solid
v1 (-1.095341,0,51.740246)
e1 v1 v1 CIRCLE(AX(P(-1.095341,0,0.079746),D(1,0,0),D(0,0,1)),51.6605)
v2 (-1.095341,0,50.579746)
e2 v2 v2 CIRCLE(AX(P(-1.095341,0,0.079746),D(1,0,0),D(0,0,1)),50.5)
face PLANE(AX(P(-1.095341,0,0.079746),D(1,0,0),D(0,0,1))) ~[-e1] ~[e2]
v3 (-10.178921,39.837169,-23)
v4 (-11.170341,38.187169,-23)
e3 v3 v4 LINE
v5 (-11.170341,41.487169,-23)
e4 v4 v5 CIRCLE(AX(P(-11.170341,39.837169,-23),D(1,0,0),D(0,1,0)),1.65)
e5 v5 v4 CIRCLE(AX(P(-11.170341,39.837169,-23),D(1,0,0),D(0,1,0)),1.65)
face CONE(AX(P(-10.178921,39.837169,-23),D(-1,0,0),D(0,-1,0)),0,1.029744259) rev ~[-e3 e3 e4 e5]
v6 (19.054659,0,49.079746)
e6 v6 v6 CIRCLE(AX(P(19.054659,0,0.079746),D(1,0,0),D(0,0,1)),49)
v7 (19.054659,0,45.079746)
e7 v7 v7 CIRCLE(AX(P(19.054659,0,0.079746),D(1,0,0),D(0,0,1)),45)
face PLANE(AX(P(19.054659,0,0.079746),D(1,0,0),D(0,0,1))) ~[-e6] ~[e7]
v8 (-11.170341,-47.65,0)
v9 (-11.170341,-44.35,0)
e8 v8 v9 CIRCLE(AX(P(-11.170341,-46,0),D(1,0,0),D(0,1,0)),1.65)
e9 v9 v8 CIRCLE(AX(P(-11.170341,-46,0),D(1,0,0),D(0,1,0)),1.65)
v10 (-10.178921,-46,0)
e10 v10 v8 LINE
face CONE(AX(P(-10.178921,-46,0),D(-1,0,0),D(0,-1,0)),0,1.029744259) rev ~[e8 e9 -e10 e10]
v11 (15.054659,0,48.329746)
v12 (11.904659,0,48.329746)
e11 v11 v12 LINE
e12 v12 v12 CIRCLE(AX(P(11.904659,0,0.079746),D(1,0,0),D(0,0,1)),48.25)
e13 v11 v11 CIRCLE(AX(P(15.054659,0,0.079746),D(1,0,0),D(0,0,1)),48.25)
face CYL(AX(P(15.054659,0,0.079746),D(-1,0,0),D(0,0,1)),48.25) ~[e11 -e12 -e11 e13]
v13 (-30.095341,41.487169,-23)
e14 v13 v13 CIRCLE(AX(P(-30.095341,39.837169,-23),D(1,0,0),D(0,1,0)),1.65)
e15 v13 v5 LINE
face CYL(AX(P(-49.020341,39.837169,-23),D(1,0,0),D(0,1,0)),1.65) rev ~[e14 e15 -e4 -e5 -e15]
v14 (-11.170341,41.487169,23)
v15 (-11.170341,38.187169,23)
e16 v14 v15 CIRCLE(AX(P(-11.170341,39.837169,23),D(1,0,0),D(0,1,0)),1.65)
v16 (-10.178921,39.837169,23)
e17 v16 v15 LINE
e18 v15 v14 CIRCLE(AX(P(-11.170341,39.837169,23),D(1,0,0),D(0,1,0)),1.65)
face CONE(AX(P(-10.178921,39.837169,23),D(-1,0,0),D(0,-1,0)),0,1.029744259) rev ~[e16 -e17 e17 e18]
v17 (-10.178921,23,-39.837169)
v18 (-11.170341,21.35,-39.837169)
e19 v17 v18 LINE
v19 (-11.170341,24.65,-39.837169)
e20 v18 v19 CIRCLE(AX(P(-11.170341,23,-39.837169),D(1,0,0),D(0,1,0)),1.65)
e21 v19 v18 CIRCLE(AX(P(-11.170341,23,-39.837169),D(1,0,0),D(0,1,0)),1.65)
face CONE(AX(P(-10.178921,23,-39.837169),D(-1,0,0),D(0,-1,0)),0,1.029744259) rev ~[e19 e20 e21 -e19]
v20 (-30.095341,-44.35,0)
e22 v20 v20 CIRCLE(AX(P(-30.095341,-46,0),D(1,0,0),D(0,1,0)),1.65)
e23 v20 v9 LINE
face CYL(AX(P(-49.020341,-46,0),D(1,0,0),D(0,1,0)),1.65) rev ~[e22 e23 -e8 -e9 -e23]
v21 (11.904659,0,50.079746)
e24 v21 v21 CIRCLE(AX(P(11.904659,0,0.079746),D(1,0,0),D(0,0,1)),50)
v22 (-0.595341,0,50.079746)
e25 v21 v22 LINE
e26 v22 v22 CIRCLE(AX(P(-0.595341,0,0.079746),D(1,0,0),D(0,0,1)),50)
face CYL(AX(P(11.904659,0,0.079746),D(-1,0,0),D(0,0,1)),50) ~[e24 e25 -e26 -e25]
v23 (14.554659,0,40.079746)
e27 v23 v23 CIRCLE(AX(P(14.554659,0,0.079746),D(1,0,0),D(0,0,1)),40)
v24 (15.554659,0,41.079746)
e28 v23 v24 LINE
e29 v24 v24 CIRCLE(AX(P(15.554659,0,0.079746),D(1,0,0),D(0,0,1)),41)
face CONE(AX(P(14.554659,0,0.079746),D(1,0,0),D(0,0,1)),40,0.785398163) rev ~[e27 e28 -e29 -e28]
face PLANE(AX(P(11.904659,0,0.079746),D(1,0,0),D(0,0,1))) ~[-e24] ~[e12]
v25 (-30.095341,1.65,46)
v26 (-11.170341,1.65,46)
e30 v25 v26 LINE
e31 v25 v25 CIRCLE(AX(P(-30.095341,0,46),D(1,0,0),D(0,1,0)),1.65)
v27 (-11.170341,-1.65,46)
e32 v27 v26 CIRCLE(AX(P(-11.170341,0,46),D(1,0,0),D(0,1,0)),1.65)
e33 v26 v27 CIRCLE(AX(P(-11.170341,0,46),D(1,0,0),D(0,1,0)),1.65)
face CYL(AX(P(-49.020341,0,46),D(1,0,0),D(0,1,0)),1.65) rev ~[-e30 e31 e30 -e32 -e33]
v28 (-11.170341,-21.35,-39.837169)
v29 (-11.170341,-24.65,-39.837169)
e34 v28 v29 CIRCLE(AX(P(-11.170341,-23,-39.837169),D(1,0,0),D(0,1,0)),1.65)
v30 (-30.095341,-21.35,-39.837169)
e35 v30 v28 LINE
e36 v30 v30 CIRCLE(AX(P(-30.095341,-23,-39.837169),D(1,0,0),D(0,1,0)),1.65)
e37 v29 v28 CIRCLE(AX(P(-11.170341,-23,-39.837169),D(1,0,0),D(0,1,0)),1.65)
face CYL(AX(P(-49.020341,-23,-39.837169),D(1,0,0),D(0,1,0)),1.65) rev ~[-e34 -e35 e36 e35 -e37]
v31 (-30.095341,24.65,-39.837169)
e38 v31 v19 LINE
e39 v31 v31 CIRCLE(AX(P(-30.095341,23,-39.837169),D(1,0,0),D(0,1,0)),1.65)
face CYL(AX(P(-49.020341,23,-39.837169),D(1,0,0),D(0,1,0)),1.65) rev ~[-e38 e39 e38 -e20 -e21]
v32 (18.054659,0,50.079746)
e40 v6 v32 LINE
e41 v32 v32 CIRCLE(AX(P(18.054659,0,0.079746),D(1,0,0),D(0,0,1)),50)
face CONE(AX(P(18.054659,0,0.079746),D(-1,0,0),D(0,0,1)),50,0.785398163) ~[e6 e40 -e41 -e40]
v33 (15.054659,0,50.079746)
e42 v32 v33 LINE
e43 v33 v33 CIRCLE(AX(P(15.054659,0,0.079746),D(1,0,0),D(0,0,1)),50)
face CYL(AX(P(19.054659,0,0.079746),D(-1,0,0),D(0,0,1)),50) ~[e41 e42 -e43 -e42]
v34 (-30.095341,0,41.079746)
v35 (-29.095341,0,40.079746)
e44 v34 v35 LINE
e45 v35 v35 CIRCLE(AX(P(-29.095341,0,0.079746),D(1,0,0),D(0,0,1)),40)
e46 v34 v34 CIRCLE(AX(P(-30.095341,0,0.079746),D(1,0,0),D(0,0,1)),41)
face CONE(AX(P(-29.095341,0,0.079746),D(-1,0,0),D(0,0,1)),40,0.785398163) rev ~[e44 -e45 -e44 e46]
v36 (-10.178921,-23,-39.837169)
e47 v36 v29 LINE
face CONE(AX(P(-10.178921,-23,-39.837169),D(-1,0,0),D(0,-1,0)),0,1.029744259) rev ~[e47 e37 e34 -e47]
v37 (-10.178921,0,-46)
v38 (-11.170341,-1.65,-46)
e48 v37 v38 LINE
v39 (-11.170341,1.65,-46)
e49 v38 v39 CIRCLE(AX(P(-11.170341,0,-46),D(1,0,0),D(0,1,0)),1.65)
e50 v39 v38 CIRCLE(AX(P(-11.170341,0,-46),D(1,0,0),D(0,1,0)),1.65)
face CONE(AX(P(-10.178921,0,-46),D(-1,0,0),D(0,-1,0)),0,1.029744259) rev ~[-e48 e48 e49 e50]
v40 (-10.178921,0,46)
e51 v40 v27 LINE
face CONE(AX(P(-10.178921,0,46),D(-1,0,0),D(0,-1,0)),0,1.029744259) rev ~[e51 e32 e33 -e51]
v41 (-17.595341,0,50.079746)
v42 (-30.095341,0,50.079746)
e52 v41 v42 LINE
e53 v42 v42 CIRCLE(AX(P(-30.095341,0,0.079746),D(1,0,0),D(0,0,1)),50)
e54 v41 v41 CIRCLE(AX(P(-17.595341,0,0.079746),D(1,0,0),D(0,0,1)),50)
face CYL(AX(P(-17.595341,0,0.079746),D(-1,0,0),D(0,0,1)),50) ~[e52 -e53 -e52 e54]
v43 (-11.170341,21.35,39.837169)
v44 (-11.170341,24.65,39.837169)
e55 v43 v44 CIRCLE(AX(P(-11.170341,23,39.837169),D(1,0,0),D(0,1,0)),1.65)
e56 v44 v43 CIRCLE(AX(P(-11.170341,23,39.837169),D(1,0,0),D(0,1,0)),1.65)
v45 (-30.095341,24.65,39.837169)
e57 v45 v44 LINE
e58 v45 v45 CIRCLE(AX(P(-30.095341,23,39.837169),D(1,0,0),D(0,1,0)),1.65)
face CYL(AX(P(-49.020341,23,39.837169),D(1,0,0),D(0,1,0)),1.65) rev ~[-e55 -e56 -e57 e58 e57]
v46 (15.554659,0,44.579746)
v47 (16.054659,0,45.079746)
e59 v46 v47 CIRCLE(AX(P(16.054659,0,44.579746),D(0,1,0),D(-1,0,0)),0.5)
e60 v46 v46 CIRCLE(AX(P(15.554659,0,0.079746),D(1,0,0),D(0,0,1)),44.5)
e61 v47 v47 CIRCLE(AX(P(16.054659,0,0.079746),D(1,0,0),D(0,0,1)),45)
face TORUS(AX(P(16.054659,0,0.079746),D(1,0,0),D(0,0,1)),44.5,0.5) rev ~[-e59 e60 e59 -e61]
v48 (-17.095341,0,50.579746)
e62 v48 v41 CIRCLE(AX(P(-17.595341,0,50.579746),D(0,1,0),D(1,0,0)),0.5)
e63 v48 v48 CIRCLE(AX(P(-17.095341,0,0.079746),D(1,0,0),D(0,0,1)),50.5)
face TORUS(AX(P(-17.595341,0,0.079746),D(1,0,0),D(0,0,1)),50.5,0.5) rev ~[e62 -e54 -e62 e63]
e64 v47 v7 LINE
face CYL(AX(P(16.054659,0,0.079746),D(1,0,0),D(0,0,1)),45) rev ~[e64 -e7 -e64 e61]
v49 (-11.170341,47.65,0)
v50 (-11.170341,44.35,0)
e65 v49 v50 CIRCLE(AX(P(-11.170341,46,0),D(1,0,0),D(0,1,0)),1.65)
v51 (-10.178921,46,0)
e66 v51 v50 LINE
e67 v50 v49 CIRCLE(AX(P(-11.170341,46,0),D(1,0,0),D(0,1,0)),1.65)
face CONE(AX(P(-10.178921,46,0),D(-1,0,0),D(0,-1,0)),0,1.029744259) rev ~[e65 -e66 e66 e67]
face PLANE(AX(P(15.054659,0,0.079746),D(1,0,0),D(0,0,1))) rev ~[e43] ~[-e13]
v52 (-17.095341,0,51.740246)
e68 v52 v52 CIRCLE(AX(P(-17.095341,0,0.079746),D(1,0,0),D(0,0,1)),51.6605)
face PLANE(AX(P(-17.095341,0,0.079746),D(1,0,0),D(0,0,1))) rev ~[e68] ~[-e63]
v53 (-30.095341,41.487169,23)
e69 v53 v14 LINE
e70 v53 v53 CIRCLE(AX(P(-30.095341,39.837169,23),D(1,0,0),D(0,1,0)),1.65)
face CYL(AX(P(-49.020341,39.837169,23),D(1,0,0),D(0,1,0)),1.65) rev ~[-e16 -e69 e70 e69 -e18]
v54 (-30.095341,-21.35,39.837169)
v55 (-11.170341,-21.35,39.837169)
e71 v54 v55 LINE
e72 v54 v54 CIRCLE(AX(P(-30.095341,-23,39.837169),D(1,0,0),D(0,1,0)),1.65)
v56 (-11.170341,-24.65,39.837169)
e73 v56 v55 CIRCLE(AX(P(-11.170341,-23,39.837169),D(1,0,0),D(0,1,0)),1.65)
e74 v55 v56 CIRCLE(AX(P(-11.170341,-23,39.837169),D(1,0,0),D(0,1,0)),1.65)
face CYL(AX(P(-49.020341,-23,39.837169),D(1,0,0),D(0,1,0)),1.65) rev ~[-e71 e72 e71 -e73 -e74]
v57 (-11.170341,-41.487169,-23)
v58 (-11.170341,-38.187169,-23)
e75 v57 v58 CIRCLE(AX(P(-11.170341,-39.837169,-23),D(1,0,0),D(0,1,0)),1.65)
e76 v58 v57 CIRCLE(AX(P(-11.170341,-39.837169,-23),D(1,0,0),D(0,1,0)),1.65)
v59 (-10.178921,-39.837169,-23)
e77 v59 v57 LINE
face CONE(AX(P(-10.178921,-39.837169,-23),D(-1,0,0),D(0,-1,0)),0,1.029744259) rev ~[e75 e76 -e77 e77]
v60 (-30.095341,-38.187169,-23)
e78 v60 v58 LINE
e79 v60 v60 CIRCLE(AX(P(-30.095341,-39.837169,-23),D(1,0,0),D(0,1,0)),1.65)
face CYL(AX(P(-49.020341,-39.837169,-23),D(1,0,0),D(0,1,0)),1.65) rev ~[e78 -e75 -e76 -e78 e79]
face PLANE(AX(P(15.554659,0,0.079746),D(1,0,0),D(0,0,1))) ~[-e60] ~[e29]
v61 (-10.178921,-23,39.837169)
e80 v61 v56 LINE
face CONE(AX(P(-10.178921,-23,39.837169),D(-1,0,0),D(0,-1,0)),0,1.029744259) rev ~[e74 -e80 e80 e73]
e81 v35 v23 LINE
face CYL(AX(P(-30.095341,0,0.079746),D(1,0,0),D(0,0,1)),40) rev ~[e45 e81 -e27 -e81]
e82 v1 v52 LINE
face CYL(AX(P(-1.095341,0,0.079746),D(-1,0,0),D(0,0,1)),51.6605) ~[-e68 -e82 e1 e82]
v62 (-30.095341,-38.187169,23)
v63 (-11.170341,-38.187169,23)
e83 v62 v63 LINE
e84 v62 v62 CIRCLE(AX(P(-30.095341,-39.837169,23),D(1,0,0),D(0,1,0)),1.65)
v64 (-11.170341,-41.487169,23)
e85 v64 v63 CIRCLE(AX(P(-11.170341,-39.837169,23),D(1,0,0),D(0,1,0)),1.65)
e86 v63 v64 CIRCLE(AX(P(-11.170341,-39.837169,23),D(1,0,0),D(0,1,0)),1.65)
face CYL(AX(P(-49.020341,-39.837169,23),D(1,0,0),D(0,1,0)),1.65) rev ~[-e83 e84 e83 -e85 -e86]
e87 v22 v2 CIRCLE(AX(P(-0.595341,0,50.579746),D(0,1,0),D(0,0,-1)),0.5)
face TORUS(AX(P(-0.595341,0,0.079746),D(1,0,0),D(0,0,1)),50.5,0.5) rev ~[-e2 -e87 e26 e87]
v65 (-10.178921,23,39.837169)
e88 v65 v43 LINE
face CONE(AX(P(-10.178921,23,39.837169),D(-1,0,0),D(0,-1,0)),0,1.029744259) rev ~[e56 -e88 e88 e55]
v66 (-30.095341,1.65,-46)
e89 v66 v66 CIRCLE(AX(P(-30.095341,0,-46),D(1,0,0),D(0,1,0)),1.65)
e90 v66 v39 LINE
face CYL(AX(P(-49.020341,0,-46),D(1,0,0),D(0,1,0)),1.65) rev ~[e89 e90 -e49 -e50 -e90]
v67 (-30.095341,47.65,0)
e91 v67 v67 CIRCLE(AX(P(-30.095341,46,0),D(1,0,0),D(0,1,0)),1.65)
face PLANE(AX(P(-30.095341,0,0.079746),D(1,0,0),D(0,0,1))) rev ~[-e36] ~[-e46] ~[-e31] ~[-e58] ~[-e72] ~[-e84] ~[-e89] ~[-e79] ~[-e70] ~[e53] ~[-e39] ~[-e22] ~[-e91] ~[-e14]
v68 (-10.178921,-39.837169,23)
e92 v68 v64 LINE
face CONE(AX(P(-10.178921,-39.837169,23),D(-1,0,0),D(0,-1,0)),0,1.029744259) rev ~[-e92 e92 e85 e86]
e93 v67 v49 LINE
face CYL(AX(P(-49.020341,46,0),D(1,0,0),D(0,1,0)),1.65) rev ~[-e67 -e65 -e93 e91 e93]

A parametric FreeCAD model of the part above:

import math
import FreeCAD as App
import Part
import Sketcher

V = App.Vector


def edges_at(feature, points):
    """Names of the edges that pass closest to the given points."""
    edges = feature.Shape.Edges
    near = lambda p: min(range(len(edges)), key=lambda i: edges[i].distToShape(Part.Vertex(*p))[0])
    return sorted({f"Edge{near(p) + 1}" for p in points})

doc = App.newDocument("Part")
body = doc.addObject("PartDesign::Body", "Body")

# Sketch on XZ plane
sketch1 = body.newObject("Sketcher::SketchObject", "Sketch")
sketch1.AttachmentSupport = (doc.getObject("XZ_Plane"), [""])
sketch1.MapMode = "FlatFace"
sketch1.addGeometry(Part.LineSegment(V(-17.6, 5.5, 0), V(-30.1, 5.5, 0)), False)
sketch1.addGeometry(Part.LineSegment(V(-30.1, 5.5, 0), V(-30.1, -4.5, 0)), False)
sketch1.addGeometry(Part.LineSegment(V(-30.1, -4.5, 0), V(15.6, -4.5, 0)), False)
sketch1.addGeometry(Part.LineSegment(V(15.6, -4.5, 0), V(15.6, 0, 0)), False)
sketch1.addGeometry(Part.ArcOfCircle(Part.Circle(V(16.1, 0, 0), V(0, 0, 1), 0.5), math.radians(90), math.radians(180)), False)
sketch1.addGeometry(Part.LineSegment(V(16.1, 0.5, 0), V(19.1, 0.5, 0)), False)
sketch1.addGeometry(Part.LineSegment(V(19.1, 0.5, 0), V(19.1, 5.5, 0)), False)
sketch1.addGeometry(Part.LineSegment(V(19.1, 5.5, 0), V(15.1, 5.5, 0)), False)
sketch1.addGeometry(Part.LineSegment(V(15.1, 5.5, 0), V(15.1, 3.8, 0)), False)
sketch1.addGeometry(Part.LineSegment(V(15.1, 3.8, 0), V(11.9, 3.8, 0)), False)
sketch1.addGeometry(Part.LineSegment(V(11.9, 3.8, 0), V(11.9, 5.5, 0)), False)
sketch1.addGeometry(Part.LineSegment(V(11.9, 5.5, 0), V(-0.6, 5.5, 0)), False)
sketch1.addGeometry(Part.ArcOfCircle(Part.Circle(V(-0.6, 6, 0), V(0, 0, 1), 0.5), math.radians(180), math.radians(270)), False)
sketch1.addGeometry(Part.LineSegment(V(-1.1, 6, 0), V(-1.1, 7.2, 0)), False)
sketch1.addGeometry(Part.LineSegment(V(-1.1, 7.2, 0), V(-17.1, 7.2, 0)), False)
sketch1.addGeometry(Part.LineSegment(V(-17.1, 7.2, 0), V(-17.1, 6, 0)), False)
sketch1.addGeometry(Part.ArcOfCircle(Part.Circle(V(-17.6, 6, 0), V(0, 0, 1), 0.5), math.radians(-90), math.radians(0)), False)
sketch1.addGeometry(Part.LineSegment(V(-30.1, -44.5, 0), V(19.1, -44.5, 0)), True)  # axis
sketch1.addConstraint(Sketcher.Constraint("Coincident", 0, 2, 1, 1))
sketch1.addConstraint(Sketcher.Constraint("Coincident", 1, 2, 2, 1))
sketch1.addConstraint(Sketcher.Constraint("Coincident", 2, 2, 3, 1))
sketch1.addConstraint(Sketcher.Constraint("Tangent", 3, 2, 4, 2))
sketch1.addConstraint(Sketcher.Constraint("Tangent", 4, 1, 5, 1))
sketch1.addConstraint(Sketcher.Constraint("Coincident", 5, 2, 6, 1))
sketch1.addConstraint(Sketcher.Constraint("Coincident", 6, 2, 7, 1))
sketch1.addConstraint(Sketcher.Constraint("Coincident", 7, 2, 8, 1))
sketch1.addConstraint(Sketcher.Constraint("Coincident", 8, 2, 9, 1))
sketch1.addConstraint(Sketcher.Constraint("Coincident", 9, 2, 10, 1))
sketch1.addConstraint(Sketcher.Constraint("Coincident", 10, 2, 11, 1))
sketch1.addConstraint(Sketcher.Constraint("Tangent", 11, 2, 12, 2))
sketch1.addConstraint(Sketcher.Constraint("Tangent", 12, 1, 13, 1))
sketch1.addConstraint(Sketcher.Constraint("Coincident", 13, 2, 14, 1))
sketch1.addConstraint(Sketcher.Constraint("Coincident", 14, 2, 15, 1))
sketch1.addConstraint(Sketcher.Constraint("Tangent", 15, 2, 16, 2))
sketch1.addConstraint(Sketcher.Constraint("Tangent", 16, 1, 0, 1))
sketch1.addConstraint(Sketcher.Constraint("Horizontal", 0))
sketch1.addConstraint(Sketcher.Constraint("Vertical", 1))
sketch1.addConstraint(Sketcher.Constraint("Horizontal", 2))
sketch1.addConstraint(Sketcher.Constraint("Vertical", 3))
sketch1.addConstraint(Sketcher.Constraint("Horizontal", 5))
sketch1.addConstraint(Sketcher.Constraint("Vertical", 6))
sketch1.addConstraint(Sketcher.Constraint("Horizontal", 7))
sketch1.addConstraint(Sketcher.Constraint("Vertical", 8))
sketch1.addConstraint(Sketcher.Constraint("Horizontal", 9))
sketch1.addConstraint(Sketcher.Constraint("Vertical", 10))
sketch1.addConstraint(Sketcher.Constraint("Horizontal", 11))
sketch1.addConstraint(Sketcher.Constraint("Vertical", 13))
sketch1.addConstraint(Sketcher.Constraint("Horizontal", 14))
sketch1.addConstraint(Sketcher.Constraint("Vertical", 15))
sketch1.addConstraint(Sketcher.Constraint("Horizontal", 17))
sketch1.addConstraint(Sketcher.Constraint("Equal", 4, 12))
sketch1.addConstraint(Sketcher.Constraint("Equal", 12, 16))
sketch1.addConstraint(Sketcher.Constraint("Horizontal", 12, 3, 16, 3))
sketch1.addConstraint(Sketcher.Constraint("Horizontal", 0, 2, 6, 2))
sketch1.addConstraint(Sketcher.Constraint("Vertical", 1, 2, 17, 1))
sketch1.addConstraint(Sketcher.Constraint("Vertical", 6, 2, 17, 2))
sketch1.addConstraint(Sketcher.Constraint("Equal", 0, 11))
sketch1.addConstraint(Sketcher.Constraint("Radius", 4, 0.5))
sketch1.addConstraint(Sketcher.Constraint("DistanceX", 5, 1, 5, 2, 3.0))
sketch1.addConstraint(Sketcher.Constraint("DistanceX", 7, 2, 7, 1, 4.0))
sketch1.addConstraint(Sketcher.Constraint("DistanceX", 14, 2, 14, 1, 16.0))
sketch1.addConstraint(Sketcher.Constraint("DistanceY", 1, 2, 1, 1, 10.0))
sketch1.addConstraint(Sketcher.Constraint("DistanceY", 6, 1, 6, 2, 5.0))
sketch1.addConstraint(Sketcher.Constraint("DistanceX", 0, 2, 0, 1, 12.5))
sketch1.addConstraint(Sketcher.Constraint("DistanceY", 17, 1, 1, 2, 40.0))
sketch1.addConstraint(Sketcher.Constraint("DistanceX", 2, 1, 2, 2, 45.65))
sketch1.addConstraint(Sketcher.Constraint("DistanceY", 8, 2, 8, 1, 1.75))
sketch1.addConstraint(Sketcher.Constraint("DistanceY", 13, 1, 13, 2, 1.1605))
sketch1.addConstraint(Sketcher.Constraint("DistanceX", -1, 1, 4, 3, 16.054659))
sketch1.addConstraint(Sketcher.Constraint("DistanceY", -1, 1, 4, 3, 0.016746))
revolution = body.newObject("PartDesign::Revolution", "Revolution")
revolution.Profile = sketch1
revolution.ReferenceAxis = (sketch1, ["Axis0"])
revolution.Angle = 360
body2 = doc.addObject("PartDesign::Body", "Body001")
doc.recompute()

body.Placement = App.Placement(V(0, 0, 44.563), App.Rotation(V(0, 0, 1), 0))
boolean = body2.newObject("PartDesign::Boolean", "Boolean")
boolean.Type = "Fuse"
boolean.addObjects([body])

# Sketch on YZ plane
sketch2 = body2.newObject("Sketcher::SketchObject", "Sketch001")
sketch2.AttachmentSupport = (doc.getObject("YZ_Plane001"), [""])
sketch2.MapMode = "FlatFace"
sketch2.AttachmentOffset = App.Placement(V(0, 0, -30.095341), App.Rotation())
sketch2.addGeometry(Part.Circle(V(0, 46, 0), V(0, 0, 1), 1.6), False)
sketch2.addGeometry(Part.Circle(V(-23, 39.8, 0), V(0, 0, 1), 1.6), False)
sketch2.addGeometry(Part.Circle(V(-39.8, 23, 0), V(0, 0, 1), 1.6), False)
sketch2.addGeometry(Part.Circle(V(-46, 0, 0), V(0, 0, 1), 1.6), False)
sketch2.addGeometry(Part.Circle(V(-39.8, -23, 0), V(0, 0, 1), 1.6), False)
sketch2.addGeometry(Part.Circle(V(-23, -39.8, 0), V(0, 0, 1), 1.6), False)
sketch2.addGeometry(Part.Circle(V(0, -46, 0), V(0, 0, 1), 1.6), False)
sketch2.addGeometry(Part.Circle(V(23, -39.8, 0), V(0, 0, 1), 1.6), False)
sketch2.addGeometry(Part.Circle(V(39.8, -23, 0), V(0, 0, 1), 1.6), False)
sketch2.addGeometry(Part.Circle(V(46, 0, 0), V(0, 0, 1), 1.6), False)
sketch2.addGeometry(Part.Circle(V(39.8, 23, 0), V(0, 0, 1), 1.6), False)
sketch2.addGeometry(Part.Circle(V(23, 39.8, 0), V(0, 0, 1), 1.6), False)
sketch2.addConstraint(Sketcher.Constraint("Equal", 0, 1))
sketch2.addConstraint(Sketcher.Constraint("Equal", 1, 2))
sketch2.addConstraint(Sketcher.Constraint("Equal", 2, 3))
sketch2.addConstraint(Sketcher.Constraint("Equal", 3, 4))
sketch2.addConstraint(Sketcher.Constraint("Equal", 4, 5))
sketch2.addConstraint(Sketcher.Constraint("Equal", 5, 6))
sketch2.addConstraint(Sketcher.Constraint("Equal", 6, 7))
sketch2.addConstraint(Sketcher.Constraint("Equal", 7, 8))
sketch2.addConstraint(Sketcher.Constraint("Equal", 8, 9))
sketch2.addConstraint(Sketcher.Constraint("Equal", 9, 10))
sketch2.addConstraint(Sketcher.Constraint("Equal", 10, 11))
sketch2.addConstraint(Sketcher.Constraint("Symmetric", 0, 3, 6, 3, -1, 1))
sketch2.addConstraint(Sketcher.Constraint("Symmetric", 1, 3, 7, 3, -1, 1))
sketch2.addConstraint(Sketcher.Constraint("Symmetric", 2, 3, 8, 3, -1, 1))
sketch2.addConstraint(Sketcher.Constraint("Symmetric", 3, 3, 9, 3, -1, 1))
sketch2.addConstraint(Sketcher.Constraint("Symmetric", 4, 3, 10, 3, -1, 1))
sketch2.addConstraint(Sketcher.Constraint("Symmetric", 5, 3, 11, 3, -1, 1))
sketch2.addConstraint(Sketcher.Constraint("Symmetric", 5, 3, 7, 3, -2))
sketch2.addConstraint(Sketcher.Constraint("Symmetric", 4, 3, 8, 3, -2))
sketch2.addConstraint(Sketcher.Constraint("PointOnObject", 0, 3, -2))
sketch2.addConstraint(Sketcher.Constraint("PointOnObject", 3, 3, -1))
sketch2.addConstraint(Sketcher.Constraint("Diameter", 0, 3.3))
sketch2.addConstraint(Sketcher.Constraint("DistanceY", -1, 1, 0, 3, 46.0))
sketch2.addConstraint(Sketcher.Constraint("DistanceX", 1, 3, -1, 1, 23.0))
sketch2.addConstraint(Sketcher.Constraint("DistanceY", -1, 1, 2, 3, 23.0))
sketch2.addConstraint(Sketcher.Constraint("DistanceX", 3, 3, -1, 1, 46.0))
sketch2.addConstraint(Sketcher.Constraint("DistanceY", -1, 1, 1, 3, 39.837169))
sketch2.addConstraint(Sketcher.Constraint("DistanceX", 2, 3, -1, 1, 39.837169))
doc.recompute()
hole = body2.newObject("PartDesign::Hole", "Hole")
hole.Profile = sketch2
hole.ThreadType = "None"
hole.Diameter = 3.3
hole.DepthType = "Dimension"
hole.Depth = 18.925
hole.DrillPoint = "Angled"
hole.DrillPointAngle = 118
hole.Reversed = True
doc.recompute()

chamfer = body2.newObject("PartDesign::Chamfer", "Chamfer")
chamfer.Base = (hole, edges_at(hole, [
    (-30.095, 0, -39.92),
    (15.555, 0, -39.92),
    (-7.27, 0, 40.08),
    (19.055, 0, -49.92),
]))
chamfer.Size = 1

doc.recompute()
